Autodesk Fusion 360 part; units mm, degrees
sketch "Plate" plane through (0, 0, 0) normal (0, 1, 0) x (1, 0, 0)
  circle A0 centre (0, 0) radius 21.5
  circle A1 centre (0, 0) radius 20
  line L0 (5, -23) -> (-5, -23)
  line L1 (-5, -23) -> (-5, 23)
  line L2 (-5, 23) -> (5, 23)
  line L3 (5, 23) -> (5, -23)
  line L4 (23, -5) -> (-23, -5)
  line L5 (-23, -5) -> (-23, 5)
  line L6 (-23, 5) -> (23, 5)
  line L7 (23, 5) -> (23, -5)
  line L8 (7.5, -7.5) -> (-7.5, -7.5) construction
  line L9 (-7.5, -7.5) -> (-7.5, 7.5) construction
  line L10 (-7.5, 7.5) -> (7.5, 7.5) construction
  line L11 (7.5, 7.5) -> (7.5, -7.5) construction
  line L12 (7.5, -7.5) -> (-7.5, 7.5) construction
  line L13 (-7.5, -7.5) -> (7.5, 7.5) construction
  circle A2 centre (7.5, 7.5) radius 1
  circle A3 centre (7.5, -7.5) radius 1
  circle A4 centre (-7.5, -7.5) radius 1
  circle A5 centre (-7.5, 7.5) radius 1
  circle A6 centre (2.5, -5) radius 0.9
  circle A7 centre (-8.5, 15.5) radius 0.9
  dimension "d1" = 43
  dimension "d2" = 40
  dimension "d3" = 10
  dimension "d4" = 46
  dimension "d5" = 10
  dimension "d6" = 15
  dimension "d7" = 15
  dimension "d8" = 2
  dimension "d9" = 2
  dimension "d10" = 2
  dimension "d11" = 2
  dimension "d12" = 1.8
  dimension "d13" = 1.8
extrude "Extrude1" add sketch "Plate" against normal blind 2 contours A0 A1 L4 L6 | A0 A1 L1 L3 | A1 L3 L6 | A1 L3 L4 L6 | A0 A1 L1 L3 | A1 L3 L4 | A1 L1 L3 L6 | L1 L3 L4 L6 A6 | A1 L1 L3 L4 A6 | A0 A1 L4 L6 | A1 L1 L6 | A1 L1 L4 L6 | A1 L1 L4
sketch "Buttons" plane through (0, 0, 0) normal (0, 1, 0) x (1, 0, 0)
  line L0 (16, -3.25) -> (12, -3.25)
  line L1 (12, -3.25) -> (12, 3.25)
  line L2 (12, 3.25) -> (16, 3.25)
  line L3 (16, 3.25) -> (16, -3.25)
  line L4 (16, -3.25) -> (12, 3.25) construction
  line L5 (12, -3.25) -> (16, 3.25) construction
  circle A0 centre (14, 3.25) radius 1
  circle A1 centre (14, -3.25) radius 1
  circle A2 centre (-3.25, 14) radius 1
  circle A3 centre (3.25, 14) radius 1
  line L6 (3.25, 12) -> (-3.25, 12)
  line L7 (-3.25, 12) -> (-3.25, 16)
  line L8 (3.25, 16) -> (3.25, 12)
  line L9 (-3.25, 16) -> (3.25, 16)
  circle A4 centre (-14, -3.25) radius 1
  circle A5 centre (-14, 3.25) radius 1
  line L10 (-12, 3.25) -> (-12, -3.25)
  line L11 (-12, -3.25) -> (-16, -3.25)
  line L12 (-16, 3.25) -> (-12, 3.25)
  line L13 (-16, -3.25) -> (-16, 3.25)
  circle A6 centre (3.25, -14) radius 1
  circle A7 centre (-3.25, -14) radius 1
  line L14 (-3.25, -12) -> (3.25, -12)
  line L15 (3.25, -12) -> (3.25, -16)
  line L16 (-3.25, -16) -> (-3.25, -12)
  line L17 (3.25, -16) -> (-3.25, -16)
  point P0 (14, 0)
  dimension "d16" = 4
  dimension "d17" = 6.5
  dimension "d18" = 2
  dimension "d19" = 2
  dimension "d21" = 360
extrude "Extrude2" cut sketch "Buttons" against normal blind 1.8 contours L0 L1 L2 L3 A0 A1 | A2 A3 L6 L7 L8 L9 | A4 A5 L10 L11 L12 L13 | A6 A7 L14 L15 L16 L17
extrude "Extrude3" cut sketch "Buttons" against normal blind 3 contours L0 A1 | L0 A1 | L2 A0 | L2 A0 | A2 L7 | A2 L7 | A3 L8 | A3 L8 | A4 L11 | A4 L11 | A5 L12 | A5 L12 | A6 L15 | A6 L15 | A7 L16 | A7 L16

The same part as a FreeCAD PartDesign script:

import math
import FreeCAD as App
import Part
import Sketcher
from FreeCAD import Vector

doc = App.newDocument("Part")
body = doc.addObject("PartDesign::Body", "Body")

sketch1 = doc.addObject("Sketcher::SketchObject", "Sketch")
body.addObject(sketch1)
sketch1.AttachmentSupport = (doc.XZ_Plane, [""])
sketch1.MapMode = "FlatFace"
sketch1.addGeometry(Part.ArcOfCircle(Part.Circle(Vector(0, 0, 0), Vector(0, 0, 1), 21.5), math.radians(-13.447727), math.radians(13.447727)), False)
sketch1.addGeometry(Part.LineSegment(Vector(20.910524, -5, 0), Vector(19.364917, -5, 0)), False)
sketch1.addGeometry(Part.ArcOfCircle(Part.Circle(Vector(0, 0, 0), Vector(0, 0, 1), 20), math.radians(-75.522488), math.radians(-14.477512)), False)
sketch1.addGeometry(Part.LineSegment(Vector(5, -19.364917, 0), Vector(5, -20.910524, 0)), False)
sketch1.addGeometry(Part.ArcOfCircle(Part.Circle(Vector(0, 0, 0), Vector(0, 0, 1), 21.5), math.radians(-103.447727), math.radians(-76.552273)), False)
sketch1.addGeometry(Part.LineSegment(Vector(-5, -20.910524, 0), Vector(-5, -19.364917, 0)), False)
sketch1.addGeometry(Part.ArcOfCircle(Part.Circle(Vector(0, 0, 0), Vector(0, 0, 1), 20), math.radians(-165.522488), math.radians(-104.477512)), False)
sketch1.addGeometry(Part.LineSegment(Vector(-19.364917, -5, 0), Vector(-20.910524, -5, 0)), False)
sketch1.addGeometry(Part.ArcOfCircle(Part.Circle(Vector(0, 0, 0), Vector(0, 0, 1), 21.5), math.radians(166.552273), math.radians(193.447727)), False)
sketch1.addGeometry(Part.LineSegment(Vector(-20.910524, 5, 0), Vector(-19.364917, 5, 0)), False)
sketch1.addGeometry(Part.ArcOfCircle(Part.Circle(Vector(0, 0, 0), Vector(0, 0, 1), 20), math.radians(104.477512), math.radians(165.522488)), False)
sketch1.addGeometry(Part.LineSegment(Vector(-5, 19.364917, 0), Vector(-5, 20.910524, 0)), False)
sketch1.addGeometry(Part.ArcOfCircle(Part.Circle(Vector(0, 0, 0), Vector(0, 0, 1), 21.5), math.radians(76.552273), math.radians(103.447727)), False)
sketch1.addGeometry(Part.LineSegment(Vector(5, 20.910524, 0), Vector(5, 19.364917, 0)), False)
sketch1.addGeometry(Part.ArcOfCircle(Part.Circle(Vector(0, 0, 0), Vector(0, 0, 1), 20), math.radians(14.477512), math.radians(75.522488)), False)
sketch1.addGeometry(Part.LineSegment(Vector(19.364917, 5, 0), Vector(20.910524, 5, 0)), False)
sketch1.addGeometry(Part.Circle(Vector(2.5, 5, 0), Vector(0, 0, 1), 0.9), False)
sketch1.addGeometry(Part.Circle(Vector(7.5, -7.5, 0), Vector(0, 0, 1), 1), False)
sketch1.addGeometry(Part.Circle(Vector(7.5, 7.5, 0), Vector(0, 0, 1), 1), False)
sketch1.addGeometry(Part.Circle(Vector(-8.5, -15.5, 0), Vector(0, 0, 1), 0.9), False)
sketch1.addGeometry(Part.Circle(Vector(-7.5, -7.5, 0), Vector(0, 0, 1), 1), False)
sketch1.addGeometry(Part.Circle(Vector(-7.5, 7.5, 0), Vector(0, 0, 1), 1), False)
sketch1.addConstraint(Sketcher.Constraint("Coincident", 0, 1, 1, 1))
sketch1.addConstraint(Sketcher.Constraint("Coincident", 1, 2, 2, 2))
sketch1.addConstraint(Sketcher.Constraint("Coincident", 2, 1, 3, 1))
sketch1.addConstraint(Sketcher.Constraint("Coincident", 3, 2, 4, 2))
sketch1.addConstraint(Sketcher.Constraint("Coincident", 4, 1, 5, 1))
sketch1.addConstraint(Sketcher.Constraint("Coincident", 5, 2, 6, 2))
sketch1.addConstraint(Sketcher.Constraint("Coincident", 6, 1, 7, 1))
sketch1.addConstraint(Sketcher.Constraint("Coincident", 7, 2, 8, 2))
sketch1.addConstraint(Sketcher.Constraint("Coincident", 8, 1, 9, 1))
sketch1.addConstraint(Sketcher.Constraint("Coincident", 9, 2, 10, 2))
sketch1.addConstraint(Sketcher.Constraint("Coincident", 10, 1, 11, 1))
sketch1.addConstraint(Sketcher.Constraint("Coincident", 11, 2, 12, 2))
sketch1.addConstraint(Sketcher.Constraint("Coincident", 12, 1, 13, 1))
sketch1.addConstraint(Sketcher.Constraint("Coincident", 13, 2, 14, 2))
sketch1.addConstraint(Sketcher.Constraint("Coincident", 14, 1, 15, 1))
sketch1.addConstraint(Sketcher.Constraint("Coincident", 15, 2, 0, 2))
sketch1.addConstraint(Sketcher.Constraint("Horizontal", 1))
sketch1.addConstraint(Sketcher.Constraint("Vertical", 3))
sketch1.addConstraint(Sketcher.Constraint("Vertical", 5))
sketch1.addConstraint(Sketcher.Constraint("Horizontal", 7))
sketch1.addConstraint(Sketcher.Constraint("Horizontal", 9))
sketch1.addConstraint(Sketcher.Constraint("Vertical", 11))
sketch1.addConstraint(Sketcher.Constraint("Vertical", 13))
sketch1.addConstraint(Sketcher.Constraint("Horizontal", 15))
sketch1.addConstraint(Sketcher.Constraint("Coincident", 0, 3, -1, 1))
sketch1.addConstraint(Sketcher.Constraint("Coincident", 2, 3, -1, 1))
sketch1.addConstraint(Sketcher.Constraint("Coincident", 4, 3, -1, 1))
sketch1.addConstraint(Sketcher.Constraint("Coincident", 6, 3, -1, 1))
sketch1.addConstraint(Sketcher.Constraint("Coincident", 8, 3, -1, 1))
sketch1.addConstraint(Sketcher.Constraint("Coincident", 10, 3, -1, 1))
sketch1.addConstraint(Sketcher.Constraint("Coincident", 12, 3, -1, 1))
sketch1.addConstraint(Sketcher.Constraint("Coincident", 14, 3, -1, 1))
sketch1.addConstraint(Sketcher.Constraint("Equal", 0, 4))
sketch1.addConstraint(Sketcher.Constraint("Equal", 2, 6))
sketch1.addConstraint(Sketcher.Constraint("Equal", 4, 8))
sketch1.addConstraint(Sketcher.Constraint("Equal", 6, 10))
sketch1.addConstraint(Sketcher.Constraint("Equal", 8, 12))
sketch1.addConstraint(Sketcher.Constraint("Equal", 10, 14))
sketch1.addConstraint(Sketcher.Constraint("Equal", 17, 18))
sketch1.addConstraint(Sketcher.Constraint("Equal", 16, 19))
sketch1.addConstraint(Sketcher.Constraint("Equal", 18, 20))
sketch1.addConstraint(Sketcher.Constraint("Equal", 20, 21))
sketch1.addConstraint(Sketcher.Constraint("Symmetric", 18, 3, 20, 3, -1, 1))
sketch1.addConstraint(Sketcher.Constraint("Symmetric", 17, 3, 21, 3, -1, 1))
sketch1.addConstraint(Sketcher.Constraint("Symmetric", 17, 3, 20, 3, -2))
sketch1.addConstraint(Sketcher.Constraint("Horizontal", 3, 2, 4, 1))
sketch1.addConstraint(Sketcher.Constraint("Horizontal", 1, 2, 6, 1))
sketch1.addConstraint(Sketcher.Constraint("Horizontal", 16, 3, 8, 1))
sketch1.addConstraint(Sketcher.Constraint("Horizontal", 11, 2, 12, 1))
sketch1.addConstraint(Sketcher.Constraint("Horizontal", 9, 2, 14, 1))
sketch1.addConstraint(Sketcher.Constraint("Vertical", 7, 2, 8, 1))
sketch1.addConstraint(Sketcher.Constraint("Vertical", 5, 2, 10, 1))
sketch1.addConstraint(Sketcher.Constraint("Equal", 15, 3))
sketch1.addConstraint(Sketcher.Constraint("Diameter", 17, 2.0))
sketch1.addConstraint(Sketcher.Constraint("Radius", 2, 20.0))
sketch1.addConstraint(Sketcher.Constraint("Diameter", 16, 1.8))
sketch1.addConstraint(Sketcher.Constraint("Radius", 0, 21.5))
sketch1.addConstraint(Sketcher.Constraint("DistanceX", 21, 3, 16, 3, 10.0))
sketch1.addConstraint(Sketcher.Constraint("DistanceY", 0, 1, 16, 3, 10.0))
sketch1.addConstraint(Sketcher.Constraint("DistanceX", 16, 3, 18, 3, 5.0))
sketch1.addConstraint(Sketcher.Constraint("DistanceX", 19, 3, 20, 3, 1.0))
sketch1.addConstraint(Sketcher.Constraint("DistanceY", 19, 3, 20, 3, 8.0))
sketch1.addConstraint(Sketcher.Constraint("DistanceY", 17, 3, -1, 1, 7.5))
pad1 = doc.addObject("PartDesign::Pad", "Pad")
body.addObject(pad1)
pad1.Profile = sketch1
pad1.Length = 2

sketch2 = doc.addObject("Sketcher::SketchObject", "Sketch001")
body.addObject(sketch2)
sketch2.AttachmentSupport = (doc.XZ_Plane, [""])
sketch2.MapMode = "FlatFace"
sketch2.addGeometry(Part.LineSegment(Vector(15, 3.25, 0), Vector(16, 3.25, 0)), False)
sketch2.addGeometry(Part.LineSegment(Vector(16, 3.25, 0), Vector(16, -3.25, 0)), False)
sketch2.addGeometry(Part.LineSegment(Vector(16, -3.25, 0), Vector(15, -3.25, 0)), False)
sketch2.addGeometry(Part.ArcOfCircle(Part.Circle(Vector(14, -3.25, 0), Vector(0, 0, 1), 1), math.radians(0), math.radians(180)), False)
sketch2.addGeometry(Part.LineSegment(Vector(13, -3.25, 0), Vector(12, -3.25, 0)), False)
sketch2.addGeometry(Part.LineSegment(Vector(12, -3.25, 0), Vector(12, 3.25, 0)), False)
sketch2.addGeometry(Part.LineSegment(Vector(12, 3.25, 0), Vector(13, 3.25, 0)), False)
sketch2.addGeometry(Part.ArcOfCircle(Part.Circle(Vector(14, 3.25, 0), Vector(0, 0, 1), 1), math.radians(180), math.radians(360)), False)
sketch2.addGeometry(Part.ArcOfCircle(Part.Circle(Vector(-3.25, -14, 0), Vector(0, 0, 1), 1), math.radians(-90), math.radians(90)), False)
sketch2.addGeometry(Part.LineSegment(Vector(-3.25, -13, 0), Vector(-3.25, -12, 0)), False)
sketch2.addGeometry(Part.LineSegment(Vector(-3.25, -12, 0), Vector(3.25, -12, 0)), False)
sketch2.addGeometry(Part.LineSegment(Vector(3.25, -12, 0), Vector(3.25, -13, 0)), False)
sketch2.addGeometry(Part.ArcOfCircle(Part.Circle(Vector(3.25, -14, 0), Vector(0, 0, 1), 1), math.radians(90), math.radians(270)), False)
sketch2.addGeometry(Part.LineSegment(Vector(3.25, -15, 0), Vector(3.25, -16, 0)), False)
sketch2.addGeometry(Part.LineSegment(Vector(3.25, -16, 0), Vector(-3.25, -16, 0)), False)
sketch2.addGeometry(Part.LineSegment(Vector(-3.25, -16, 0), Vector(-3.25, -15, 0)), False)
sketch2.addGeometry(Part.ArcOfCircle(Part.Circle(Vector(-14, 3.25, 0), Vector(0, 0, 1), 1), math.radians(180), math.radians(360)), False)
sketch2.addGeometry(Part.LineSegment(Vector(-13, 3.25, 0), Vector(-12, 3.25, 0)), False)
sketch2.addGeometry(Part.LineSegment(Vector(-12, 3.25, 0), Vector(-12, -3.25, 0)), False)
sketch2.addGeometry(Part.LineSegment(Vector(-12, -3.25, 0), Vector(-13, -3.25, 0)), False)
sketch2.addGeometry(Part.ArcOfCircle(Part.Circle(Vector(-14, -3.25, 0), Vector(0, 0, 1), 1), math.radians(0), math.radians(180)), False)
sketch2.addGeometry(Part.LineSegment(Vector(-15, -3.25, 0), Vector(-16, -3.25, 0)), False)
sketch2.addGeometry(Part.LineSegment(Vector(-16, -3.25, 0), Vector(-16, 3.25, 0)), False)
sketch2.addGeometry(Part.LineSegment(Vector(-16, 3.25, 0), Vector(-15, 3.25, 0)), False)
sketch2.addGeometry(Part.ArcOfCircle(Part.Circle(Vector(3.25, 14, 0), Vector(0, 0, 1), 1), math.radians(90), math.radians(270)), False)
sketch2.addGeometry(Part.LineSegment(Vector(3.25, 13, 0), Vector(3.25, 12, 0)), False)
sketch2.addGeometry(Part.LineSegment(Vector(3.25, 12, 0), Vector(-3.25, 12, 0)), False)
sketch2.addGeometry(Part.LineSegment(Vector(-3.25, 12, 0), Vector(-3.25, 13, 0)), False)
sketch2.addGeometry(Part.ArcOfCircle(Part.Circle(Vector(-3.25, 14, 0), Vector(0, 0, 1), 1), math.radians(-90), math.radians(90)), False)
sketch2.addGeometry(Part.LineSegment(Vector(-3.25, 15, 0), Vector(-3.25, 16, 0)), False)
sketch2.addGeometry(Part.LineSegment(Vector(-3.25, 16, 0), Vector(3.25, 16, 0)), False)
sketch2.addGeometry(Part.LineSegment(Vector(3.25, 16, 0), Vector(3.25, 15, 0)), False)
sketch2.addConstraint(Sketcher.Constraint("Coincident", 0, 2, 1, 1))
sketch2.addConstraint(Sketcher.Constraint("Coincident", 1, 2, 2, 1))
sketch2.addConstraint(Sketcher.Constraint("Coincident", 2, 2, 3, 1))
sketch2.addConstraint(Sketcher.Constraint("Coincident", 3, 2, 4, 1))
sketch2.addConstraint(Sketcher.Constraint("Coincident", 4, 2, 5, 1))
sketch2.addConstraint(Sketcher.Constraint("Coincident", 5, 2, 6, 1))
sketch2.addConstraint(Sketcher.Constraint("Coincident", 6, 2, 7, 1))
sketch2.addConstraint(Sketcher.Constraint("Coincident", 7, 2, 0, 1))
sketch2.addConstraint(Sketcher.Constraint("Coincident", 8, 2, 9, 1))
sketch2.addConstraint(Sketcher.Constraint("Coincident", 9, 2, 10, 1))
sketch2.addConstraint(Sketcher.Constraint("Coincident", 10, 2, 11, 1))
sketch2.addConstraint(Sketcher.Constraint("Coincident", 11, 2, 12, 1))
sketch2.addConstraint(Sketcher.Constraint("Coincident", 12, 2, 13, 1))
sketch2.addConstraint(Sketcher.Constraint("Coincident", 13, 2, 14, 1))
sketch2.addConstraint(Sketcher.Constraint("Coincident", 14, 2, 15, 1))
sketch2.addConstraint(Sketcher.Constraint("Coincident", 15, 2, 8, 1))
sketch2.addConstraint(Sketcher.Constraint("Coincident", 16, 2, 17, 1))
sketch2.addConstraint(Sketcher.Constraint("Coincident", 17, 2, 18, 1))
sketch2.addConstraint(Sketcher.Constraint("Coincident", 18, 2, 19, 1))
sketch2.addConstraint(Sketcher.Constraint("Coincident", 19, 2, 20, 1))
sketch2.addConstraint(Sketcher.Constraint("Coincident", 20, 2, 21, 1))
sketch2.addConstraint(Sketcher.Constraint("Coincident", 21, 2, 22, 1))
sketch2.addConstraint(Sketcher.Constraint("Coincident", 22, 2, 23, 1))
sketch2.addConstraint(Sketcher.Constraint("Coincident", 23, 2, 16, 1))
sketch2.addConstraint(Sketcher.Constraint("Coincident", 24, 2, 25, 1))
sketch2.addConstraint(Sketcher.Constraint("Coincident", 25, 2, 26, 1))
sketch2.addConstraint(Sketcher.Constraint("Coincident", 26, 2, 27, 1))
sketch2.addConstraint(Sketcher.Constraint("Coincident", 27, 2, 28, 1))
sketch2.addConstraint(Sketcher.Constraint("Coincident", 28, 2, 29, 1))
sketch2.addConstraint(Sketcher.Constraint("Coincident", 29, 2, 30, 1))
sketch2.addConstraint(Sketcher.Constraint("Coincident", 30, 2, 31, 1))
sketch2.addConstraint(Sketcher.Constraint("Coincident", 31, 2, 24, 1))
sketch2.addConstraint(Sketcher.Constraint("Horizontal", 0))
sketch2.addConstraint(Sketcher.Constraint("Vertical", 1))
sketch2.addConstraint(Sketcher.Constraint("Horizontal", 2))
sketch2.addConstraint(Sketcher.Constraint("Horizontal", 4))
sketch2.addConstraint(Sketcher.Constraint("Vertical", 5))
sketch2.addConstraint(Sketcher.Constraint("Horizontal", 6))
sketch2.addConstraint(Sketcher.Constraint("Vertical", 9))
sketch2.addConstraint(Sketcher.Constraint("Horizontal", 10))
sketch2.addConstraint(Sketcher.Constraint("Vertical", 11))
sketch2.addConstraint(Sketcher.Constraint("Vertical", 13))
sketch2.addConstraint(Sketcher.Constraint("Horizontal", 14))
sketch2.addConstraint(Sketcher.Constraint("Vertical", 15))
sketch2.addConstraint(Sketcher.Constraint("Horizontal", 17))
sketch2.addConstraint(Sketcher.Constraint("Vertical", 18))
sketch2.addConstraint(Sketcher.Constraint("Horizontal", 19))
sketch2.addConstraint(Sketcher.Constraint("Horizontal", 21))
sketch2.addConstraint(Sketcher.Constraint("Vertical", 22))
sketch2.addConstraint(Sketcher.Constraint("Horizontal", 23))
sketch2.addConstraint(Sketcher.Constraint("Vertical", 25))
sketch2.addConstraint(Sketcher.Constraint("Horizontal", 26))
sketch2.addConstraint(Sketcher.Constraint("Vertical", 27))
sketch2.addConstraint(Sketcher.Constraint("Vertical", 29))
sketch2.addConstraint(Sketcher.Constraint("Horizontal", 30))
sketch2.addConstraint(Sketcher.Constraint("Vertical", 31))
sketch2.addConstraint(Sketcher.Constraint("Equal", 3, 7))
sketch2.addConstraint(Sketcher.Constraint("Equal", 7, 8))
sketch2.addConstraint(Sketcher.Constraint("Equal", 8, 12))
sketch2.addConstraint(Sketcher.Constraint("Equal", 12, 16))
sketch2.addConstraint(Sketcher.Constraint("Equal", 16, 20))
sketch2.addConstraint(Sketcher.Constraint("Equal", 20, 24))
sketch2.addConstraint(Sketcher.Constraint("Equal", 24, 28))
sketch2.addConstraint(Sketcher.Constraint("Symmetric", 3, 3, 16, 3, -1, 1))
sketch2.addConstraint(Sketcher.Constraint("Symmetric", 7, 3, 20, 3, -1, 1))
sketch2.addConstraint(Sketcher.Constraint("Symmetric", 8, 3, 24, 3, -1, 1))
sketch2.addConstraint(Sketcher.Constraint("Symmetric", 12, 3, 28, 3, -1, 1))
sketch2.addConstraint(Sketcher.Constraint("Symmetric", 4, 2, 17, 2, -1, 1))
sketch2.addConstraint(Sketcher.Constraint("Symmetric", 0, 2, 21, 2, -1, 1))
sketch2.addConstraint(Sketcher.Constraint("Symmetric", 9, 2, 25, 2, -1, 1))
sketch2.addConstraint(Sketcher.Constraint("Symmetric", 13, 2, 29, 2, -1, 1))
sketch2.addConstraint(Sketcher.Constraint("Symmetric", 8, 3, 12, 3, -2))
sketch2.addConstraint(Sketcher.Constraint("Symmetric", 7, 3, 16, 3, -2))
sketch2.addConstraint(Sketcher.Constraint("Horizontal", 16, 3, 0, 2))
sketch2.addConstraint(Sketcher.Constraint("Horizontal", 20, 3, 1, 2))
sketch2.addConstraint(Sketcher.Constraint("Horizontal", 2, 2, 3, 2))
sketch2.addConstraint(Sketcher.Constraint("Horizontal", 0, 2, 5, 2))
sketch2.addConstraint(Sketcher.Constraint("Horizontal", 4, 2, 18, 2))
sketch2.addConstraint(Sketcher.Constraint("Horizontal", 17, 2, 22, 2))
sketch2.addConstraint(Sketcher.Constraint("Vertical", 28, 3, 8, 2))
sketch2.addConstraint(Sketcher.Constraint("Vertical", 24, 3, 10, 2))
sketch2.addConstraint(Sketcher.Constraint("Vertical", 11, 2, 12, 2))
sketch2.addConstraint(Sketcher.Constraint("Vertical", 9, 2, 14, 2))
sketch2.addConstraint(Sketcher.Constraint("Vertical", 15, 2, 26, 2))
sketch2.addConstraint(Sketcher.Constraint("Vertical", 25, 2, 30, 2))
sketch2.addConstraint(Sketcher.Constraint("Equal", 2, 4))
sketch2.addConstraint(Sketcher.Constraint("Equal", 30, 1))
sketch2.addConstraint(Sketcher.Constraint("Equal", 23, 9))
sketch2.addConstraint(Sketcher.Constraint("Equal", 11, 13))
sketch2.addConstraint(Sketcher.Constraint("Radius", 3, 1.0))
sketch2.addConstraint(Sketcher.Constraint("DistanceX", 10, 1, 10, 2, 6.5))
sketch2.addConstraint(Sketcher.Constraint("DistanceX", 7, 3, 0, 2, 2.0))
sketch2.addConstraint(Sketcher.Constraint("DistanceX", -1, 1, 3, 3, 14.0))
sketch2.addConstraint(Sketcher.Constraint("DistanceY", 8, 3, -1, 1, 14.0))
pocket1 = doc.addObject("PartDesign::Pocket", "Pocket")
body.addObject(pocket1)
pocket1.Profile = sketch2
pocket1.Length = 1.8
pocket1.Reversed = True

sketch3 = doc.addObject("Sketcher::SketchObject", "Sketch002")
body.addObject(sketch3)
sketch3.AttachmentSupport = (doc.XZ_Plane, [""])
sketch3.MapMode = "FlatFace"
sketch3.addGeometry(Part.Circle(Vector(14, 3.25, 0), Vector(0, 0, 1), 1), False)
sketch3.addGeometry(Part.Circle(Vector(14, -3.25, 0), Vector(0, 0, 1), 1), False)
sketch3.addGeometry(Part.Circle(Vector(-3.25, -14, 0), Vector(0, 0, 1), 1), False)
sketch3.addGeometry(Part.Circle(Vector(3.25, -14, 0), Vector(0, 0, 1), 1), False)
sketch3.addGeometry(Part.Circle(Vector(-14, 3.25, 0), Vector(0, 0, 1), 1), False)
sketch3.addGeometry(Part.Circle(Vector(-14, -3.25, 0), Vector(0, 0, 1), 1), False)
sketch3.addGeometry(Part.Circle(Vector(3.25, 14, 0), Vector(0, 0, 1), 1), False)
sketch3.addGeometry(Part.Circle(Vector(-3.25, 14, 0), Vector(0, 0, 1), 1), False)
sketch3.addConstraint(Sketcher.Constraint("Equal", 0, 1))
sketch3.addConstraint(Sketcher.Constraint("Equal", 1, 2))
sketch3.addConstraint(Sketcher.Constraint("Equal", 2, 3))
sketch3.addConstraint(Sketcher.Constraint("Equal", 3, 4))
sketch3.addConstraint(Sketcher.Constraint("Equal", 4, 5))
sketch3.addConstraint(Sketcher.Constraint("Equal", 5, 6))
sketch3.addConstraint(Sketcher.Constraint("Equal", 6, 7))
sketch3.addConstraint(Sketcher.Constraint("Symmetric", 1, 3, 4, 3, -1, 1))
sketch3.addConstraint(Sketcher.Constraint("Symmetric", 0, 3, 5, 3, -1, 1))
sketch3.addConstraint(Sketcher.Constraint("Symmetric", 2, 3, 6, 3, -1, 1))
sketch3.addConstraint(Sketcher.Constraint("Symmetric", 3, 3, 7, 3, -1, 1))
sketch3.addConstraint(Sketcher.Constraint("Symmetric", 2, 3, 3, 3, -2))
sketch3.addConstraint(Sketcher.Constraint("Symmetric", 0, 3, 4, 3, -2))
sketch3.addConstraint(Sketcher.Constraint("Diameter", 0, 2.0))
sketch3.addConstraint(Sketcher.Constraint("DistanceY", 1, 3, 0, 3, 6.5))
sketch3.addConstraint(Sketcher.Constraint("DistanceX", 2, 3, 3, 3, 6.5))
sketch3.addConstraint(Sketcher.Constraint("DistanceX", -1, 1, 0, 3, 14.0))
sketch3.addConstraint(Sketcher.Constraint("DistanceY", 2, 3, -1, 1, 14.0))
pocket2 = doc.addObject("PartDesign::Pocket", "Pocket001")
body.addObject(pocket2)
pocket2.Profile = sketch3
pocket2.Length = 3
pocket2.Reversed = True

doc.recompute()
